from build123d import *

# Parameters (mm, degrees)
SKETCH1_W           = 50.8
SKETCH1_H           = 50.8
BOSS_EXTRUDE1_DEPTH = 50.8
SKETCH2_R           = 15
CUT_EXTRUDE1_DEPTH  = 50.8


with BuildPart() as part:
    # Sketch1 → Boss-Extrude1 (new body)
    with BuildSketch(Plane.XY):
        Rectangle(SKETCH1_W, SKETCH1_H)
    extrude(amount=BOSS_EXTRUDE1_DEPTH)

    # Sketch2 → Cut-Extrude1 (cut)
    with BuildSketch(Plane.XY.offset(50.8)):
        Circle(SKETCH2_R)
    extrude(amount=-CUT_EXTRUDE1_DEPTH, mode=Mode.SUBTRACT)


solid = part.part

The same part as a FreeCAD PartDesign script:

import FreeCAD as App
import Part
import Sketcher
from FreeCAD import Vector
Q = App.Units.Quantity

doc = App.newDocument("Part")
body = doc.addObject("PartDesign::Body", "Body")

# Sketch on XY plane
sketch1 = doc.addObject("Sketcher::SketchObject", "Sketch")
body.addObject(sketch1)
sketch1.AttachmentSupport = (doc.XY_Plane, [""])
sketch1.MapMode = "FlatFace"
sketch1.addGeometry([
    Part.LineSegment(Vector(-25, 25, 0), Vector(-25, -25, 0)),
    Part.LineSegment(Vector(-25, -25, 0), Vector(25, -25, 0)),
    Part.LineSegment(Vector(25, -25, 0), Vector(25, 25, 0)),
    Part.LineSegment(Vector(25, 25, 0), Vector(-25, 25, 0)),
], False)
sketch1.addConstraint([
    Sketcher.Constraint("Coincident", 0, 2, 1, 1),
    Sketcher.Constraint("Coincident", 1, 2, 2, 1),
    Sketcher.Constraint("Coincident", 2, 2, 3, 1),
    Sketcher.Constraint("Coincident", 3, 2, 0, 1),
    Sketcher.Constraint("Vertical", 0),
    Sketcher.Constraint("Horizontal", 1),
    Sketcher.Constraint("Vertical", 2),
    Sketcher.Constraint("Horizontal", 3),
    Sketcher.Constraint("Symmetric", 0, 2, 2, 2, -1, 1),
    Sketcher.Constraint("Equal", 3, 0),
    Sketcher.Constraint("DistanceX", 1, 1, 1, 2, Q("50.8 mm")),
])
pad1 = doc.addObject("PartDesign::Pad", "Pad")
body.addObject(pad1)
pad1.Profile = sketch1
pad1.Length = 50.8

# Sketch on XY plane
sketch2 = doc.addObject("Sketcher::SketchObject", "Sketch001")
body.addObject(sketch2)
sketch2.AttachmentSupport = (doc.XY_Plane, [""])
sketch2.MapMode = "FlatFace"
sketch2.AttachmentOffset = App.Placement(Vector(0, 0, 50.8), App.Rotation())
sketch2.addGeometry(Part.Circle(Vector(0, 0, 0), Vector(0, 0, 1), 15), False)
sketch2.addConstraint([
    Sketcher.Constraint("Coincident", 0, 3, -1, 1),
    Sketcher.Constraint("Diameter", 0, Q("30 mm")),
])
pocket1 = doc.addObject("PartDesign::Pocket", "Pocket")
body.addObject(pocket1)
pocket1.Profile = sketch2
pocket1.Length = 50.8

doc.recompute()
